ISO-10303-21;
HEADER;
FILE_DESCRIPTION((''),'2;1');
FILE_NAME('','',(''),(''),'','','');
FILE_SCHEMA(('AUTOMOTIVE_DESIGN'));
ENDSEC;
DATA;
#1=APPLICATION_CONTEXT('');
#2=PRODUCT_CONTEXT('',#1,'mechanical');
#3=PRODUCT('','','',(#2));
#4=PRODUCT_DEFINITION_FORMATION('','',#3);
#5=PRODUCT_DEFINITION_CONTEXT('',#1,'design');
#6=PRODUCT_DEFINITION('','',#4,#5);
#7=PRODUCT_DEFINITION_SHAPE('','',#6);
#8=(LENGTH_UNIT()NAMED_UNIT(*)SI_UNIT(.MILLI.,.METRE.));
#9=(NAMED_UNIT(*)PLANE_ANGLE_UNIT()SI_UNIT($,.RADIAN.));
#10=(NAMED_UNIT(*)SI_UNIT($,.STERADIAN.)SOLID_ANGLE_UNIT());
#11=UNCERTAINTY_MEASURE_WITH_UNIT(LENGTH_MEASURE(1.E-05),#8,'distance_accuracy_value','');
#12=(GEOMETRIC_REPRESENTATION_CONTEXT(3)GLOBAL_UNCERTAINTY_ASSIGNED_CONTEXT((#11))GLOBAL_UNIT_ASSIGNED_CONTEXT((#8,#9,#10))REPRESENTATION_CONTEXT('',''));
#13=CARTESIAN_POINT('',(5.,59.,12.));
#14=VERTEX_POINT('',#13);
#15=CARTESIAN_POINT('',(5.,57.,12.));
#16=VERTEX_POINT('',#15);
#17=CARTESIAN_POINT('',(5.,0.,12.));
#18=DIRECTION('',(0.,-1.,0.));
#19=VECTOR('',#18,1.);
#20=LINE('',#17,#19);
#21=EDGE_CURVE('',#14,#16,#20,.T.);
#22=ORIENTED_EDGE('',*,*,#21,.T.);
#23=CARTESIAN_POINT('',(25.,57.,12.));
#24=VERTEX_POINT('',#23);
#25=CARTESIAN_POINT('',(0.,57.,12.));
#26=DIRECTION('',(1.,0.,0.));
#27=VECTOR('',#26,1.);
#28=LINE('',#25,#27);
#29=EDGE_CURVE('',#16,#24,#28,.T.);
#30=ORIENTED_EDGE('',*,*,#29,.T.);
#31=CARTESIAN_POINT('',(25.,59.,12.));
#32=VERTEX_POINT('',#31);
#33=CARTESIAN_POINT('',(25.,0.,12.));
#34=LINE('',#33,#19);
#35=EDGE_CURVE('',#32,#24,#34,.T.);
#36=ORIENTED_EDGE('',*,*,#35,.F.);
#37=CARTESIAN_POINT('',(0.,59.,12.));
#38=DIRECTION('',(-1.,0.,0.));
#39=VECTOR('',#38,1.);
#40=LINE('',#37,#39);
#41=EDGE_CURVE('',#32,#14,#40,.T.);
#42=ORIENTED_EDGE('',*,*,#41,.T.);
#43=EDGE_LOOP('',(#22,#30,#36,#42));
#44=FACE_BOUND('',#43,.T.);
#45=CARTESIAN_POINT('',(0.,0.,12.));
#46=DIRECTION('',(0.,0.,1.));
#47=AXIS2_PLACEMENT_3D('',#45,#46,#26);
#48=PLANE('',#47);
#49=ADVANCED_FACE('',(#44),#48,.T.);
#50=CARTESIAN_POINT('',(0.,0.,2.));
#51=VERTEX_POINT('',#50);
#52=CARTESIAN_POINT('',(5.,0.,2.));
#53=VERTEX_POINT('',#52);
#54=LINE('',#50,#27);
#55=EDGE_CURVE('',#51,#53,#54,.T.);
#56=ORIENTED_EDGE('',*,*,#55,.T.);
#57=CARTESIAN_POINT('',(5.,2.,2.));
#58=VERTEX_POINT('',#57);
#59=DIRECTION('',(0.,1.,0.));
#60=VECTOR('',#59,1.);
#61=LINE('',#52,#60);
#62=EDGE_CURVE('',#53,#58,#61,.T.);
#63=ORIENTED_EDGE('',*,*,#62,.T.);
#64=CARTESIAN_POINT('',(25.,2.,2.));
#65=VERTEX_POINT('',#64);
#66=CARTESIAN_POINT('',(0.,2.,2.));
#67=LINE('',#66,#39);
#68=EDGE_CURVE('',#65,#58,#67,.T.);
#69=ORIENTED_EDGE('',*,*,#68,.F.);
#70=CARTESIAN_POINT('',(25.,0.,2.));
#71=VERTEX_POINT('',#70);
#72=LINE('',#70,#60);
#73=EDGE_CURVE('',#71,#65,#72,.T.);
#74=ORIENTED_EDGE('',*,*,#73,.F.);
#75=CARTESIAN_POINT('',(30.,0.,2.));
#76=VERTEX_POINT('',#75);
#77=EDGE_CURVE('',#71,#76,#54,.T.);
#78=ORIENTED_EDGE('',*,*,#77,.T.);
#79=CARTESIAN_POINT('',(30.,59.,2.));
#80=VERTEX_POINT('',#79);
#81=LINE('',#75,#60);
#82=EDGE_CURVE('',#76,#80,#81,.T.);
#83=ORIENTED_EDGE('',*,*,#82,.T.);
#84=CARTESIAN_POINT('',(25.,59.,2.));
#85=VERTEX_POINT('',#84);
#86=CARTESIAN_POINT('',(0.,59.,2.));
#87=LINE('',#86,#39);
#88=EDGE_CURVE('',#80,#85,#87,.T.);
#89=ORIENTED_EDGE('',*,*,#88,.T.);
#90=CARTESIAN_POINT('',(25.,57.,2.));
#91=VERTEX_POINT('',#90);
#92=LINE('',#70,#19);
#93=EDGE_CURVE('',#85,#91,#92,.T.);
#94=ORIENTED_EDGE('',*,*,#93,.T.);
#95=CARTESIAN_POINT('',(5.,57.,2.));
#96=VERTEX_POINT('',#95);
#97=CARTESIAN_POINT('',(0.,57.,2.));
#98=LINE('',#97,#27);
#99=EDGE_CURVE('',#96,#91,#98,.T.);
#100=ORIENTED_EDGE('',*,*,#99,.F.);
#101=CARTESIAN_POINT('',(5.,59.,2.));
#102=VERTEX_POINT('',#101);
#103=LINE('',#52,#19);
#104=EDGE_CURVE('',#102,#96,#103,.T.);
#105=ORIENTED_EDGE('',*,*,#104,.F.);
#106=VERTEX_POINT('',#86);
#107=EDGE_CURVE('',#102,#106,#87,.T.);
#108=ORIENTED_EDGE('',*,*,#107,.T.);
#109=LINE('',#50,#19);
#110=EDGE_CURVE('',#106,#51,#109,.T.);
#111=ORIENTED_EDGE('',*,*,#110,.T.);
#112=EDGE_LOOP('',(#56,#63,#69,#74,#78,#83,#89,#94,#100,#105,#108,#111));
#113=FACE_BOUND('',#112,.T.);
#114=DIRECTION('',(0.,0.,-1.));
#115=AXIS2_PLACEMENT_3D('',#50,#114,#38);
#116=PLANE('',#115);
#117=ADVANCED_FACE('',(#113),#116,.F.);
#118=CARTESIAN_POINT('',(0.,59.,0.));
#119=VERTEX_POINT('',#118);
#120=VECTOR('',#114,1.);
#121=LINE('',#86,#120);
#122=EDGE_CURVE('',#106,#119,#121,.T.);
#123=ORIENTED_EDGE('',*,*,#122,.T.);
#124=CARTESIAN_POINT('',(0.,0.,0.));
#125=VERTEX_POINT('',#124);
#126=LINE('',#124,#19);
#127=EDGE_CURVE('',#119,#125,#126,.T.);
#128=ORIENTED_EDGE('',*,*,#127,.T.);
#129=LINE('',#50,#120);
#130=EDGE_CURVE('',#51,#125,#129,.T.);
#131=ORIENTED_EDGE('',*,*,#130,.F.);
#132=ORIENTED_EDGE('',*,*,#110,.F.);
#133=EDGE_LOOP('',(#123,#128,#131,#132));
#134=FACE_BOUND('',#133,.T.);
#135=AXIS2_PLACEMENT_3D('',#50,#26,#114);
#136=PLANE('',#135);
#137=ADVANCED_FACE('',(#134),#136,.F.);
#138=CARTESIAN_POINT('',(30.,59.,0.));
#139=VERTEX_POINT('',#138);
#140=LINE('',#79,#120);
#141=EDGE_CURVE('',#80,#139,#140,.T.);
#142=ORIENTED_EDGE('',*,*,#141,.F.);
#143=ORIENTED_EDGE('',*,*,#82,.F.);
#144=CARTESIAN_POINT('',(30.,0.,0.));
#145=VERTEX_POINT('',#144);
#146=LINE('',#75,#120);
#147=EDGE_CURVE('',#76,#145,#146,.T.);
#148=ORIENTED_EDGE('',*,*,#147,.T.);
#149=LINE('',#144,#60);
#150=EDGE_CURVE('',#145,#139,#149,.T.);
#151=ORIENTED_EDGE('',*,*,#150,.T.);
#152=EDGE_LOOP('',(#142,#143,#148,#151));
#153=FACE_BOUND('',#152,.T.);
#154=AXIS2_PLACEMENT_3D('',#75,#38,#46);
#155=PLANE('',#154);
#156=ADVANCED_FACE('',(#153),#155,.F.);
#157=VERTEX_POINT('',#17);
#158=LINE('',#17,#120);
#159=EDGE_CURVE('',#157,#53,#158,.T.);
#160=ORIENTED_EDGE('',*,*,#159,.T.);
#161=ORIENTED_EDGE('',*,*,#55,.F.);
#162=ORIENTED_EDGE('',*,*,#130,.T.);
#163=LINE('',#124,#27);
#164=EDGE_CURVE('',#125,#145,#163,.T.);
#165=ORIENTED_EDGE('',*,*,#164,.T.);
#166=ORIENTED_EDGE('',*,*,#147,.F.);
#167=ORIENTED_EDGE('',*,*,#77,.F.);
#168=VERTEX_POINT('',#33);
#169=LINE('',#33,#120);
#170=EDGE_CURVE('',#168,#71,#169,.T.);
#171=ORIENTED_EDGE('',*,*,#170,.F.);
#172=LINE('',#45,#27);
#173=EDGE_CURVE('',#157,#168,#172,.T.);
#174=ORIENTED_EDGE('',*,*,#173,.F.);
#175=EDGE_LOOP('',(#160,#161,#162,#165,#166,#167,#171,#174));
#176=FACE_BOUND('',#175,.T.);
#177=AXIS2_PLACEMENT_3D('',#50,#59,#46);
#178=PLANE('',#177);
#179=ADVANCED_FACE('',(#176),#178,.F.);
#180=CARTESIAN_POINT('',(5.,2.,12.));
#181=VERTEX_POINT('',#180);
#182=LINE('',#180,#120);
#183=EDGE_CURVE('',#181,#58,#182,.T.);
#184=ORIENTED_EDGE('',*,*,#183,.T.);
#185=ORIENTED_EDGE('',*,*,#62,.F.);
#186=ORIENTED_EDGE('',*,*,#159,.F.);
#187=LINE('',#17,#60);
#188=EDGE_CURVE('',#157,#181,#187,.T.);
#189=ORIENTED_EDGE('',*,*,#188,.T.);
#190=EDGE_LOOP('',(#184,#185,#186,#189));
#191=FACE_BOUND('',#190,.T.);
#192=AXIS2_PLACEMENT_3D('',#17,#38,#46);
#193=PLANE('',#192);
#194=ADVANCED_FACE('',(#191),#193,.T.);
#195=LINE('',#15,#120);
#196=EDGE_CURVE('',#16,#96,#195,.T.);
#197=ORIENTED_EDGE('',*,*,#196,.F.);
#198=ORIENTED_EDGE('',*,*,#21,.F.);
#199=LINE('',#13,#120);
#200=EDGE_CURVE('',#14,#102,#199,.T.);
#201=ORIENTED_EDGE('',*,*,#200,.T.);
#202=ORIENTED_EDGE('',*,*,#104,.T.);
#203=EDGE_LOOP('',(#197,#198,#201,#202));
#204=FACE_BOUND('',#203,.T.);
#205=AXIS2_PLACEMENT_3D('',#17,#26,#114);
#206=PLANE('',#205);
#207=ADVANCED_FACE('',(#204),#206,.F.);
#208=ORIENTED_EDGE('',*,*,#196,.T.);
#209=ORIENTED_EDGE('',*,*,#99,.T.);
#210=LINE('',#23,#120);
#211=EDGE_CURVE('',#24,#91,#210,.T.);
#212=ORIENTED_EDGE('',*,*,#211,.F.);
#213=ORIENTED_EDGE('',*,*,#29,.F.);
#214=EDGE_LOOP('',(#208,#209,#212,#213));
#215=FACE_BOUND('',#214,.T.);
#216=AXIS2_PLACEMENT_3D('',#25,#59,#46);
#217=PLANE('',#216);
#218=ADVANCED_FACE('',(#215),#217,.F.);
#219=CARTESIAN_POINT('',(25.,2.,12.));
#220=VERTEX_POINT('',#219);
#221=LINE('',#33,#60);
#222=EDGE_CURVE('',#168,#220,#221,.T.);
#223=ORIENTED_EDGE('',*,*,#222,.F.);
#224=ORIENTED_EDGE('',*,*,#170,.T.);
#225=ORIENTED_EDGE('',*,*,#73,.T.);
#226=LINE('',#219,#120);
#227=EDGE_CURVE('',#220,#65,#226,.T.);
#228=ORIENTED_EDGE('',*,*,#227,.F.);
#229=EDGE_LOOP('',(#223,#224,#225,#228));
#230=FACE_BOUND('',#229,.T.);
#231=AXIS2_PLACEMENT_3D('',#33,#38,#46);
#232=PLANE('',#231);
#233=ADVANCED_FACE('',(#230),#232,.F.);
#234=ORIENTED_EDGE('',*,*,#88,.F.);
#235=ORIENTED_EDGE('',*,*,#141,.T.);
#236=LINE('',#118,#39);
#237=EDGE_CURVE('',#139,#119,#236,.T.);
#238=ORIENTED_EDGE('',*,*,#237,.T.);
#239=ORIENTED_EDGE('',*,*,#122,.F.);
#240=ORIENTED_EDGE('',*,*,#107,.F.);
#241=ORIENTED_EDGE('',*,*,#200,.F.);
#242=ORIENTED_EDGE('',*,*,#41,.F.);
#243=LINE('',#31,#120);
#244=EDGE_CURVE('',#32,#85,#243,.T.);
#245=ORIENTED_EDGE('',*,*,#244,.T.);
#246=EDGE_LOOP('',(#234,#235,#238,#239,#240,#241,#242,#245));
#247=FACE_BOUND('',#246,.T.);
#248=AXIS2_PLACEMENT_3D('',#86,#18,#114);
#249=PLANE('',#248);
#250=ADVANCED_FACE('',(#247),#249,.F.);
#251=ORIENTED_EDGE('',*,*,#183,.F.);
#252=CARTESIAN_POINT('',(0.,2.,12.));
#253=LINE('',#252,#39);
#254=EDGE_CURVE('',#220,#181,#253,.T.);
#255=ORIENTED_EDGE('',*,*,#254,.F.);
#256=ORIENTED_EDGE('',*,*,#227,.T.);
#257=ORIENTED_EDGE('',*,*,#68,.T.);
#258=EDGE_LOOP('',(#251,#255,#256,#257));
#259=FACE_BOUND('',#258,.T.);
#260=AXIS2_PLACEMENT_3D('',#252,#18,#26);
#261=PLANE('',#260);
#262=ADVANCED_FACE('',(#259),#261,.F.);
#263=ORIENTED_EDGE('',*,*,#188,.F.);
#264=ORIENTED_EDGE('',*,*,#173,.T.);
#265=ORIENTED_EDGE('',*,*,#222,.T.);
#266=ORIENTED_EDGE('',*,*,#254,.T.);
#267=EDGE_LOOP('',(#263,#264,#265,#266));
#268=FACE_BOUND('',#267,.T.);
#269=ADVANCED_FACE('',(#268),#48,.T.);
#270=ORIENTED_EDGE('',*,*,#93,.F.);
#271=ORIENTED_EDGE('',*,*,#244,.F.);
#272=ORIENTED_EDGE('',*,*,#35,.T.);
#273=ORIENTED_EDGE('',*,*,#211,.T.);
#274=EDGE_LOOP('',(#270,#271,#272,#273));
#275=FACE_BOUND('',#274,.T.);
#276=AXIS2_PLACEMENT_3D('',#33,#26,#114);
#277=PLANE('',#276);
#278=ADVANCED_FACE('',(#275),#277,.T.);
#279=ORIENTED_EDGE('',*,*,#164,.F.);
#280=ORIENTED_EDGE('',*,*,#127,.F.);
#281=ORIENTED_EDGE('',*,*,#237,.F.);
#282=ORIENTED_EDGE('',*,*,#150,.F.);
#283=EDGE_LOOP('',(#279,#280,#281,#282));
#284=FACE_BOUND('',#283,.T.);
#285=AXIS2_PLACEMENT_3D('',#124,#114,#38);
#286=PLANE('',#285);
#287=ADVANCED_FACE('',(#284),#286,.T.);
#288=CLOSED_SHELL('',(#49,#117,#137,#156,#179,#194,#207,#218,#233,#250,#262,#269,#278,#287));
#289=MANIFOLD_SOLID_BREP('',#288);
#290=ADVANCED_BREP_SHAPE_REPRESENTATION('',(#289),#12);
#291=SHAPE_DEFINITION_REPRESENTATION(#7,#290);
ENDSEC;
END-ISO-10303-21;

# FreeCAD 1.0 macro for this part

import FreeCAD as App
import Part
import Sketcher

V = App.Vector
Q = App.Units.Quantity


def add_polygon(sketch, points):
    """Adds a closed chain of lines whose ends are joined by coincident constraints."""
    first, n = sketch.GeometryCount, len(points)
    for a, b in zip(points, points[1:] + points[:1]):
        sketch.addGeometry(Part.LineSegment(App.Vector(*a, 0), App.Vector(*b, 0)), False)
    for i in range(n):
        sketch.addConstraint(Sketcher.Constraint("Coincident", first + i, 2, first + (i + 1) % n, 1))

doc = App.newDocument("Part")
body = doc.addObject("PartDesign::Body", "Body")

# Sketch on XY plane
sketch1 = body.newObject("Sketcher::SketchObject", "Sketch")
sketch1.AttachmentSupport = (doc.getObject("XY_Plane"), [""])
sketch1.MapMode = "FlatFace"
add_polygon(sketch1, [(0, 59), (0, 0), (30, 0), (30, 59)])  # lines 0-3
sketch1.addConstraint([
    Sketcher.Constraint("Vertical", 0),
    Sketcher.Constraint("Horizontal", 1),
    Sketcher.Constraint("Vertical", 2),
    Sketcher.Constraint("Horizontal", 3),
    Sketcher.Constraint("Coincident", 0, 2, -1, 1),
    Sketcher.Constraint("DistanceX", 1, 1, 1, 2, Q("30 mm")),
    Sketcher.Constraint("DistanceY", 0, 2, 0, 1, Q("59 mm")),
])
pad1 = body.newObject("PartDesign::Pad", "Pad")
pad1.Profile = sketch1
pad1.Length = 2

# Sketch on XY plane
sketch2 = body.newObject("Sketcher::SketchObject", "Sketch001")
sketch2.AttachmentSupport = (doc.getObject("XY_Plane"), [""])
sketch2.MapMode = "FlatFace"
sketch2.AttachmentOffset = App.Placement(V(0, 0, 2), App.Rotation())
add_polygon(sketch2, [(5, 59), (5, 57), (25, 57), (25, 59)])  # lines 0-3
add_polygon(sketch2, [(5, 2), (5, 0), (25, 0), (25, 2)])  # lines 4-7
sketch2.addConstraint([
    Sketcher.Constraint("Vertical", 0),
    Sketcher.Constraint("Horizontal", 1),
    Sketcher.Constraint("Vertical", 2),
    Sketcher.Constraint("Horizontal", 3),
    Sketcher.Constraint("Vertical", 4),
    Sketcher.Constraint("Horizontal", 5),
    Sketcher.Constraint("Vertical", 6),
    Sketcher.Constraint("Horizontal", 7),
    Sketcher.Constraint("PointOnObject", 4, 2, -1),
    Sketcher.Constraint("Vertical", 3, 2, 4, 2),
    Sketcher.Constraint("Vertical", 2, 2, 5, 2),
    Sketcher.Constraint("Equal", 2, 4),
    Sketcher.Constraint("DistanceX", 1, 1, 1, 2, Q("20 mm")),
    Sketcher.Constraint("DistanceY", 0, 2, 0, 1, Q("2 mm")),
    Sketcher.Constraint("DistanceX", -1, 1, 0, 2, Q("5 mm")),
    Sketcher.Constraint("DistanceY", -1, 1, 0, 2, Q("57 mm")),
])
pad2 = body.newObject("PartDesign::Pad", "Pad001")
pad2.Profile = sketch2
pad2.Length = 10

doc.recompute()
